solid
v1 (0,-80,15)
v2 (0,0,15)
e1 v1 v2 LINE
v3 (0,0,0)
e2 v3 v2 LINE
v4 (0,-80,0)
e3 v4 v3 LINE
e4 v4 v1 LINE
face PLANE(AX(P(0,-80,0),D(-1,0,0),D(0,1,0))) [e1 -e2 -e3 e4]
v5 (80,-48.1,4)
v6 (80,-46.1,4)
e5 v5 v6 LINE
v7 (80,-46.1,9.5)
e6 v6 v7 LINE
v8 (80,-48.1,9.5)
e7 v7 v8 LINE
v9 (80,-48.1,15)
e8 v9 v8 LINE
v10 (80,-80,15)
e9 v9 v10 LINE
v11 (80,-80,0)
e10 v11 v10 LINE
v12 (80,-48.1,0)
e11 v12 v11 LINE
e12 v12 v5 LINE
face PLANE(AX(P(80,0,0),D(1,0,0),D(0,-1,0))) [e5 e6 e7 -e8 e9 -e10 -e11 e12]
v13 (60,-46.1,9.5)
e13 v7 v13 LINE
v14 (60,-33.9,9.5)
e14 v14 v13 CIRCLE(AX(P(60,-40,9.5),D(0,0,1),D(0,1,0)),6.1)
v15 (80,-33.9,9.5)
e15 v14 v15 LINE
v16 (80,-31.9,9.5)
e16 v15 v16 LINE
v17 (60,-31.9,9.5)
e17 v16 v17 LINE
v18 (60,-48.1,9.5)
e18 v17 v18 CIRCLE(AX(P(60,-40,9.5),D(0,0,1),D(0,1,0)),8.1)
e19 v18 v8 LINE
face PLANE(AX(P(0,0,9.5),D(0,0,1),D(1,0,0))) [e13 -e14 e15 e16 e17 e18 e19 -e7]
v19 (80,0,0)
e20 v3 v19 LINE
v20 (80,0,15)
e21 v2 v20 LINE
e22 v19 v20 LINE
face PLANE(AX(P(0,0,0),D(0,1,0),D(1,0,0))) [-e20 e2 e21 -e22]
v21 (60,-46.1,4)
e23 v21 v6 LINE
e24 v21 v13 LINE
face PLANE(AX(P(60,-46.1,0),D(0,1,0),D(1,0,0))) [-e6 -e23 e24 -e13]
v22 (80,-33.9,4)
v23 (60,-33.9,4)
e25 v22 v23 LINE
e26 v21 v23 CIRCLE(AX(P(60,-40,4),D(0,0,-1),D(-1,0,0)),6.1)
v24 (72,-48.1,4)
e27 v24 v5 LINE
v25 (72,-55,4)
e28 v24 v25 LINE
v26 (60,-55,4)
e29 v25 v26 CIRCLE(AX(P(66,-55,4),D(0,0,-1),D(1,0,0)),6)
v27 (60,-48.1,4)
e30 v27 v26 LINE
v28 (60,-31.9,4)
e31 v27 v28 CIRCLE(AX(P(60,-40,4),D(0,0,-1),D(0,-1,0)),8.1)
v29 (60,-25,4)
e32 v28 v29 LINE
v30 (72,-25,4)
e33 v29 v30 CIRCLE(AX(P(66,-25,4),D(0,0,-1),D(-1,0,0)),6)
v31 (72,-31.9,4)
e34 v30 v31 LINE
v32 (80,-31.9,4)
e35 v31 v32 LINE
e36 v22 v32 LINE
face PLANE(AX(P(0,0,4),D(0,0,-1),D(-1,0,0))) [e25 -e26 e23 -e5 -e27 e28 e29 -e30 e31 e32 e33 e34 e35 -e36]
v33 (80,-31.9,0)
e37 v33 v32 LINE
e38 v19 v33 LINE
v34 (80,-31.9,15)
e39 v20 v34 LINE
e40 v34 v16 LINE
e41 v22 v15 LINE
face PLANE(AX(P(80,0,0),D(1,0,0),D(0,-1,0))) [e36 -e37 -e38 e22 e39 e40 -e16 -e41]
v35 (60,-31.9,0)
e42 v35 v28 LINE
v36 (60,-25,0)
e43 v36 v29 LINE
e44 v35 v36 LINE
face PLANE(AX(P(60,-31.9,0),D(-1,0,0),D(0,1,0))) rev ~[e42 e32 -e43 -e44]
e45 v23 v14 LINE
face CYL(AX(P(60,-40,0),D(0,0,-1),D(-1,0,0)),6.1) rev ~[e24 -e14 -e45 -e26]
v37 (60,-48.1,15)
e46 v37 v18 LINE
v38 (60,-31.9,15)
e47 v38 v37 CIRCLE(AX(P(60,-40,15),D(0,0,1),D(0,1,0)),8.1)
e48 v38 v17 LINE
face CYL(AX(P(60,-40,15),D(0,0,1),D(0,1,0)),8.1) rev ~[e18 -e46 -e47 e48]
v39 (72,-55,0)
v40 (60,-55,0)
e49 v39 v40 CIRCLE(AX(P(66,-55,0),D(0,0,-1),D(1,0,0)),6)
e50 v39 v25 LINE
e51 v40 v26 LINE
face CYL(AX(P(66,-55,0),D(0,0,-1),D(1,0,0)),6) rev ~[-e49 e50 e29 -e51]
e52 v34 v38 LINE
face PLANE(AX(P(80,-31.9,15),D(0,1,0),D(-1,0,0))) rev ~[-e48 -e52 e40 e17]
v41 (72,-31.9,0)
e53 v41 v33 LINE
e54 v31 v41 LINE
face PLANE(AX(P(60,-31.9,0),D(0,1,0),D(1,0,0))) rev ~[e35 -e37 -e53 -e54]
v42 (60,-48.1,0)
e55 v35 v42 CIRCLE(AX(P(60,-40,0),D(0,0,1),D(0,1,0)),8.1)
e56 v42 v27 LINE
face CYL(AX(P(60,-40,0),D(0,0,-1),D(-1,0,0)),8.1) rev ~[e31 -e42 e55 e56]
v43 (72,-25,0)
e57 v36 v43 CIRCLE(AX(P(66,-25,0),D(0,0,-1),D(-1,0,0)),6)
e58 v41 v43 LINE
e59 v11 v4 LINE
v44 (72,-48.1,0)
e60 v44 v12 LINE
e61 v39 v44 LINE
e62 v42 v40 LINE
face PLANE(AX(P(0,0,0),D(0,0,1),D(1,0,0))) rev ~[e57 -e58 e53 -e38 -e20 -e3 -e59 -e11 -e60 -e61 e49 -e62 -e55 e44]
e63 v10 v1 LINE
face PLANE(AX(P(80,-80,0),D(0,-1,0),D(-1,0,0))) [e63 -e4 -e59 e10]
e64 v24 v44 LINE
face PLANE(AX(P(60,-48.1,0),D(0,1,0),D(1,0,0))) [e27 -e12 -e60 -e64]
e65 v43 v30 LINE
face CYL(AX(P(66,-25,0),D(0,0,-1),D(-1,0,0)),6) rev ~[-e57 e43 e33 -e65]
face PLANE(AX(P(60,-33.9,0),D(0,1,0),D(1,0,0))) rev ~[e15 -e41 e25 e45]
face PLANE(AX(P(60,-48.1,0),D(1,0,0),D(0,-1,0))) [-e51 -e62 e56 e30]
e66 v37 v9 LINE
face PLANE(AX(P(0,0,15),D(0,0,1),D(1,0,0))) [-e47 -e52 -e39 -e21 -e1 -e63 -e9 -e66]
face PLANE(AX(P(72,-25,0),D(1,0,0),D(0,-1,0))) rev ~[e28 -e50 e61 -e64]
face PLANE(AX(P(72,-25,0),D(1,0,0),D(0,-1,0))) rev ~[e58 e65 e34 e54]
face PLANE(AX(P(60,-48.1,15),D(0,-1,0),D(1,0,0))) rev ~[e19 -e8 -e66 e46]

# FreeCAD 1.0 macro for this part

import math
import FreeCAD as App
import Part
import Sketcher

doc = App.newDocument("Part")
body = doc.addObject("PartDesign::Body", "Body")

sketch1 = doc.addObject("Sketcher::SketchObject", "Sketch")
body.addObject(sketch1)
sketch1.AttachmentSupport = (doc.XY_Plane, [""])
sketch1.MapMode = "FlatFace"
sketch1.addGeometry([
    Part.LineSegment(App.Vector(80, 0, 0), App.Vector(0, 0, 0)),
    Part.LineSegment(App.Vector(0, 0, 0), App.Vector(0, -80, 0)),
    Part.LineSegment(App.Vector(0, -80, 0), App.Vector(80, -80, 0)),
    Part.LineSegment(App.Vector(80, -80, 0), App.Vector(80, 0, 0)),
], False)
sketch1.addConstraint([
    Sketcher.Constraint("Coincident", 0, 2, 1, 1),
    Sketcher.Constraint("Coincident", 1, 2, 2, 1),
    Sketcher.Constraint("Coincident", 2, 2, 3, 1),
    Sketcher.Constraint("Coincident", 3, 2, 0, 1),
    Sketcher.Constraint("Horizontal", 0),
    Sketcher.Constraint("Vertical", 1),
    Sketcher.Constraint("Horizontal", 2),
    Sketcher.Constraint("Vertical", 3),
    Sketcher.Constraint("Coincident", 0, 2, -1, 1),
    Sketcher.Constraint("Equal", 2, 1),
    Sketcher.Constraint("DistanceX", 0, 2, 0, 1, 80.0),
])
pad1 = doc.addObject("PartDesign::Pad", "Pad")
body.addObject(pad1)
pad1.Profile = sketch1
pad1.Length = 15

sketch2 = doc.addObject("Sketcher::SketchObject", "Sketch001")
body.addObject(sketch2)
sketch2.AttachmentSupport = (doc.XY_Plane, [""])
sketch2.MapMode = "FlatFace"
sketch2.addGeometry([
    Part.ArcOfCircle(Part.Circle(App.Vector(60, -40, 0), App.Vector(0, 0, 1), 6), math.radians(90), math.radians(270)),
    Part.LineSegment(App.Vector(60, -34, 0), App.Vector(80, -34, 0)),
    Part.LineSegment(App.Vector(80, -34, 0), App.Vector(80, -46, 0)),
    Part.LineSegment(App.Vector(80, -46, 0), App.Vector(60, -46, 0)),
], False)
sketch2.addConstraint([
    Sketcher.Constraint("Tangent", 0, 1, 1, 1),
    Sketcher.Constraint("Coincident", 1, 2, 2, 1),
    Sketcher.Constraint("Coincident", 2, 2, 3, 1),
    Sketcher.Constraint("Tangent", 3, 2, 0, 2),
    Sketcher.Constraint("Horizontal", 1),
    Sketcher.Constraint("Vertical", 2),
    Sketcher.Constraint("Horizontal", 3),
    Sketcher.Constraint("Radius", 0, 6.1),
    Sketcher.Constraint("DistanceX", 1, 1, 1, 2, 20.0),
    Sketcher.Constraint("DistanceY", 0, 3, -1, 1, 40.0),
    Sketcher.Constraint("DistanceX", -1, 1, 0, 3, 60.0),
])
pocket1 = doc.addObject("PartDesign::Pocket", "Pocket")
body.addObject(pocket1)
pocket1.Profile = sketch2
pocket1.Type = "ThroughAll"
pocket1.Reversed = True

sketch3 = doc.addObject("Sketcher::SketchObject", "Sketch002")
body.addObject(sketch3)
sketch3.AttachmentSupport = (doc.XY_Plane, [""])
sketch3.MapMode = "FlatFace"
sketch3.addGeometry([
    Part.ArcOfCircle(Part.Circle(App.Vector(60, -40, 0), App.Vector(0, 0, 1), 8), math.radians(90), math.radians(270)),
    Part.LineSegment(App.Vector(60, -32, 0), App.Vector(80, -32, 0)),
    Part.LineSegment(App.Vector(80, -32, 0), App.Vector(80, -48, 0)),
    Part.LineSegment(App.Vector(80, -48, 0), App.Vector(60, -48, 0)),
], False)
sketch3.addConstraint([
    Sketcher.Constraint("Tangent", 0, 1, 1, 1),
    Sketcher.Constraint("Coincident", 1, 2, 2, 1),
    Sketcher.Constraint("Coincident", 2, 2, 3, 1),
    Sketcher.Constraint("Tangent", 3, 2, 0, 2),
    Sketcher.Constraint("Horizontal", 1),
    Sketcher.Constraint("Vertical", 2),
    Sketcher.Constraint("Horizontal", 3),
    Sketcher.Constraint("Radius", 0, 8.1),
    Sketcher.Constraint("DistanceX", 1, 1, 1, 2, 20.0),
    Sketcher.Constraint("DistanceX", -1, 1, 0, 3, 60.0),
    Sketcher.Constraint("DistanceY", 0, 3, -1, 1, 40.0),
])
pocket2 = doc.addObject("PartDesign::Pocket", "Pocket001")
body.addObject(pocket2)
pocket2.Profile = sketch3
pocket2.Length = 4
pocket2.Reversed = True

sketch4 = doc.addObject("Sketcher::SketchObject", "Sketch003")
body.addObject(sketch4)
sketch4.AttachmentSupport = (doc.XY_Plane, [""])
sketch4.MapMode = "FlatFace"
sketch4.AttachmentOffset = App.Placement(App.Vector(0, 0, 15), App.Rotation())
sketch4.addGeometry([
    Part.LineSegment(App.Vector(80, -33.9, 0), App.Vector(80, -31.9, 0)),
    Part.LineSegment(App.Vector(80, -31.9, 0), App.Vector(60, -31.9, 0)),
    Part.ArcOfCircle(Part.Circle(App.Vector(60, -40, 0), App.Vector(0, 0, 1), 8.1), math.radians(90), math.radians(270)),
    Part.LineSegment(App.Vector(60, -48.1, 0), App.Vector(80, -48.1, 0)),
    Part.LineSegment(App.Vector(80, -48.1, 0), App.Vector(80, -46.1, 0)),
    Part.LineSegment(App.Vector(80, -46.1, 0), App.Vector(60, -46.1, 0)),
    Part.ArcOfCircle(Part.Circle(App.Vector(60, -40, 0), App.Vector(0, 0, 1), 6.1), math.radians(90), math.radians(270)),
    Part.LineSegment(App.Vector(60, -33.9, 0), App.Vector(80, -33.9, 0)),
], False)
sketch4.addConstraint([
    Sketcher.Constraint("Coincident", 0, 2, 1, 1),
    Sketcher.Constraint("Tangent", 1, 2, 2, 1),
    Sketcher.Constraint("Tangent", 2, 2, 3, 1),
    Sketcher.Constraint("Coincident", 3, 2, 4, 1),
    Sketcher.Constraint("Coincident", 4, 2, 5, 1),
    Sketcher.Constraint("Tangent", 5, 2, 6, 2),
    Sketcher.Constraint("Tangent", 6, 1, 7, 1),
    Sketcher.Constraint("Coincident", 7, 2, 0, 1),
    Sketcher.Constraint("Vertical", 0),
    Sketcher.Constraint("Horizontal", 1),
    Sketcher.Constraint("Horizontal", 3),
    Sketcher.Constraint("Vertical", 4),
    Sketcher.Constraint("Horizontal", 5),
    Sketcher.Constraint("Horizontal", 7),
    Sketcher.Constraint("Coincident", 6, 3, 2, 3),
    Sketcher.Constraint("Vertical", 0, 2, 3, 2),
    Sketcher.Constraint("Radius", 2, 8.1),
    Sketcher.Constraint("Radius", 6, 6.1),
    Sketcher.Constraint("DistanceX", 1, 2, 1, 1, 20.0),
    Sketcher.Constraint("DistanceX", -1, 1, 2, 3, 60.0),
    Sketcher.Constraint("DistanceY", 2, 3, -1, 1, 40.0),
])
pocket3 = doc.addObject("PartDesign::Pocket", "Pocket002")
body.addObject(pocket3)
pocket3.Profile = sketch4
pocket3.Length = 5.5

sketch5 = doc.addObject("Sketcher::SketchObject", "Sketch004")
body.addObject(sketch5)
sketch5.AttachmentSupport = (doc.XY_Plane, [""])
sketch5.MapMode = "FlatFace"
sketch5.addGeometry([
    Part.LineSegment(App.Vector(72, -25, 0), App.Vector(72, -55, 0)),
    Part.ArcOfCircle(Part.Circle(App.Vector(66, -55, 0), App.Vector(0, 0, 1), 6), math.radians(180), math.radians(360)),
    Part.LineSegment(App.Vector(60, -55, 0), App.Vector(60, -48, 0)),
    Part.ArcOfCircle(Part.Circle(App.Vector(60, -40, 0), App.Vector(0, 0, 1), 8), math.radians(-90), math.radians(90)),
    Part.LineSegment(App.Vector(60, -32, 0), App.Vector(60, -25, 0)),
    Part.ArcOfCircle(Part.Circle(App.Vector(66, -25, 0), App.Vector(0, 0, 1), 6), math.radians(0), math.radians(180)),
], False)
sketch5.addConstraint([
    Sketcher.Constraint("Tangent", 0, 2, 1, 2),
    Sketcher.Constraint("Tangent", 1, 1, 2, 1),
    Sketcher.Constraint("Coincident", 2, 2, 3, 1),
    Sketcher.Constraint("Coincident", 3, 2, 4, 1),
    Sketcher.Constraint("Tangent", 4, 2, 5, 2),
    Sketcher.Constraint("Tangent", 5, 1, 0, 1),
    Sketcher.Constraint("Vertical", 0),
    Sketcher.Constraint("Vertical", 2),
    Sketcher.Constraint("Vertical", 4),
    Sketcher.Constraint("Equal", 1, 5),
    Sketcher.Constraint("Vertical", 3, 3, 1, 1),
    Sketcher.Constraint("Equal", 2, 4),
    Sketcher.Constraint("Radius", 1, 6.0),
    Sketcher.Constraint("DistanceY", 0, 2, 0, 1, 30.0),
    Sketcher.Constraint("Radius", 3, 8.1),
    Sketcher.Constraint("DistanceX", -1, 1, 1, 3, 66.0),
    Sketcher.Constraint("DistanceY", 1, 3, -1, 1, 55.0),
])
pocket4 = doc.addObject("PartDesign::Pocket", "Pocket003")
body.addObject(pocket4)
pocket4.Profile = sketch5
pocket4.Length = 4
pocket4.Reversed = True

doc.recompute()
